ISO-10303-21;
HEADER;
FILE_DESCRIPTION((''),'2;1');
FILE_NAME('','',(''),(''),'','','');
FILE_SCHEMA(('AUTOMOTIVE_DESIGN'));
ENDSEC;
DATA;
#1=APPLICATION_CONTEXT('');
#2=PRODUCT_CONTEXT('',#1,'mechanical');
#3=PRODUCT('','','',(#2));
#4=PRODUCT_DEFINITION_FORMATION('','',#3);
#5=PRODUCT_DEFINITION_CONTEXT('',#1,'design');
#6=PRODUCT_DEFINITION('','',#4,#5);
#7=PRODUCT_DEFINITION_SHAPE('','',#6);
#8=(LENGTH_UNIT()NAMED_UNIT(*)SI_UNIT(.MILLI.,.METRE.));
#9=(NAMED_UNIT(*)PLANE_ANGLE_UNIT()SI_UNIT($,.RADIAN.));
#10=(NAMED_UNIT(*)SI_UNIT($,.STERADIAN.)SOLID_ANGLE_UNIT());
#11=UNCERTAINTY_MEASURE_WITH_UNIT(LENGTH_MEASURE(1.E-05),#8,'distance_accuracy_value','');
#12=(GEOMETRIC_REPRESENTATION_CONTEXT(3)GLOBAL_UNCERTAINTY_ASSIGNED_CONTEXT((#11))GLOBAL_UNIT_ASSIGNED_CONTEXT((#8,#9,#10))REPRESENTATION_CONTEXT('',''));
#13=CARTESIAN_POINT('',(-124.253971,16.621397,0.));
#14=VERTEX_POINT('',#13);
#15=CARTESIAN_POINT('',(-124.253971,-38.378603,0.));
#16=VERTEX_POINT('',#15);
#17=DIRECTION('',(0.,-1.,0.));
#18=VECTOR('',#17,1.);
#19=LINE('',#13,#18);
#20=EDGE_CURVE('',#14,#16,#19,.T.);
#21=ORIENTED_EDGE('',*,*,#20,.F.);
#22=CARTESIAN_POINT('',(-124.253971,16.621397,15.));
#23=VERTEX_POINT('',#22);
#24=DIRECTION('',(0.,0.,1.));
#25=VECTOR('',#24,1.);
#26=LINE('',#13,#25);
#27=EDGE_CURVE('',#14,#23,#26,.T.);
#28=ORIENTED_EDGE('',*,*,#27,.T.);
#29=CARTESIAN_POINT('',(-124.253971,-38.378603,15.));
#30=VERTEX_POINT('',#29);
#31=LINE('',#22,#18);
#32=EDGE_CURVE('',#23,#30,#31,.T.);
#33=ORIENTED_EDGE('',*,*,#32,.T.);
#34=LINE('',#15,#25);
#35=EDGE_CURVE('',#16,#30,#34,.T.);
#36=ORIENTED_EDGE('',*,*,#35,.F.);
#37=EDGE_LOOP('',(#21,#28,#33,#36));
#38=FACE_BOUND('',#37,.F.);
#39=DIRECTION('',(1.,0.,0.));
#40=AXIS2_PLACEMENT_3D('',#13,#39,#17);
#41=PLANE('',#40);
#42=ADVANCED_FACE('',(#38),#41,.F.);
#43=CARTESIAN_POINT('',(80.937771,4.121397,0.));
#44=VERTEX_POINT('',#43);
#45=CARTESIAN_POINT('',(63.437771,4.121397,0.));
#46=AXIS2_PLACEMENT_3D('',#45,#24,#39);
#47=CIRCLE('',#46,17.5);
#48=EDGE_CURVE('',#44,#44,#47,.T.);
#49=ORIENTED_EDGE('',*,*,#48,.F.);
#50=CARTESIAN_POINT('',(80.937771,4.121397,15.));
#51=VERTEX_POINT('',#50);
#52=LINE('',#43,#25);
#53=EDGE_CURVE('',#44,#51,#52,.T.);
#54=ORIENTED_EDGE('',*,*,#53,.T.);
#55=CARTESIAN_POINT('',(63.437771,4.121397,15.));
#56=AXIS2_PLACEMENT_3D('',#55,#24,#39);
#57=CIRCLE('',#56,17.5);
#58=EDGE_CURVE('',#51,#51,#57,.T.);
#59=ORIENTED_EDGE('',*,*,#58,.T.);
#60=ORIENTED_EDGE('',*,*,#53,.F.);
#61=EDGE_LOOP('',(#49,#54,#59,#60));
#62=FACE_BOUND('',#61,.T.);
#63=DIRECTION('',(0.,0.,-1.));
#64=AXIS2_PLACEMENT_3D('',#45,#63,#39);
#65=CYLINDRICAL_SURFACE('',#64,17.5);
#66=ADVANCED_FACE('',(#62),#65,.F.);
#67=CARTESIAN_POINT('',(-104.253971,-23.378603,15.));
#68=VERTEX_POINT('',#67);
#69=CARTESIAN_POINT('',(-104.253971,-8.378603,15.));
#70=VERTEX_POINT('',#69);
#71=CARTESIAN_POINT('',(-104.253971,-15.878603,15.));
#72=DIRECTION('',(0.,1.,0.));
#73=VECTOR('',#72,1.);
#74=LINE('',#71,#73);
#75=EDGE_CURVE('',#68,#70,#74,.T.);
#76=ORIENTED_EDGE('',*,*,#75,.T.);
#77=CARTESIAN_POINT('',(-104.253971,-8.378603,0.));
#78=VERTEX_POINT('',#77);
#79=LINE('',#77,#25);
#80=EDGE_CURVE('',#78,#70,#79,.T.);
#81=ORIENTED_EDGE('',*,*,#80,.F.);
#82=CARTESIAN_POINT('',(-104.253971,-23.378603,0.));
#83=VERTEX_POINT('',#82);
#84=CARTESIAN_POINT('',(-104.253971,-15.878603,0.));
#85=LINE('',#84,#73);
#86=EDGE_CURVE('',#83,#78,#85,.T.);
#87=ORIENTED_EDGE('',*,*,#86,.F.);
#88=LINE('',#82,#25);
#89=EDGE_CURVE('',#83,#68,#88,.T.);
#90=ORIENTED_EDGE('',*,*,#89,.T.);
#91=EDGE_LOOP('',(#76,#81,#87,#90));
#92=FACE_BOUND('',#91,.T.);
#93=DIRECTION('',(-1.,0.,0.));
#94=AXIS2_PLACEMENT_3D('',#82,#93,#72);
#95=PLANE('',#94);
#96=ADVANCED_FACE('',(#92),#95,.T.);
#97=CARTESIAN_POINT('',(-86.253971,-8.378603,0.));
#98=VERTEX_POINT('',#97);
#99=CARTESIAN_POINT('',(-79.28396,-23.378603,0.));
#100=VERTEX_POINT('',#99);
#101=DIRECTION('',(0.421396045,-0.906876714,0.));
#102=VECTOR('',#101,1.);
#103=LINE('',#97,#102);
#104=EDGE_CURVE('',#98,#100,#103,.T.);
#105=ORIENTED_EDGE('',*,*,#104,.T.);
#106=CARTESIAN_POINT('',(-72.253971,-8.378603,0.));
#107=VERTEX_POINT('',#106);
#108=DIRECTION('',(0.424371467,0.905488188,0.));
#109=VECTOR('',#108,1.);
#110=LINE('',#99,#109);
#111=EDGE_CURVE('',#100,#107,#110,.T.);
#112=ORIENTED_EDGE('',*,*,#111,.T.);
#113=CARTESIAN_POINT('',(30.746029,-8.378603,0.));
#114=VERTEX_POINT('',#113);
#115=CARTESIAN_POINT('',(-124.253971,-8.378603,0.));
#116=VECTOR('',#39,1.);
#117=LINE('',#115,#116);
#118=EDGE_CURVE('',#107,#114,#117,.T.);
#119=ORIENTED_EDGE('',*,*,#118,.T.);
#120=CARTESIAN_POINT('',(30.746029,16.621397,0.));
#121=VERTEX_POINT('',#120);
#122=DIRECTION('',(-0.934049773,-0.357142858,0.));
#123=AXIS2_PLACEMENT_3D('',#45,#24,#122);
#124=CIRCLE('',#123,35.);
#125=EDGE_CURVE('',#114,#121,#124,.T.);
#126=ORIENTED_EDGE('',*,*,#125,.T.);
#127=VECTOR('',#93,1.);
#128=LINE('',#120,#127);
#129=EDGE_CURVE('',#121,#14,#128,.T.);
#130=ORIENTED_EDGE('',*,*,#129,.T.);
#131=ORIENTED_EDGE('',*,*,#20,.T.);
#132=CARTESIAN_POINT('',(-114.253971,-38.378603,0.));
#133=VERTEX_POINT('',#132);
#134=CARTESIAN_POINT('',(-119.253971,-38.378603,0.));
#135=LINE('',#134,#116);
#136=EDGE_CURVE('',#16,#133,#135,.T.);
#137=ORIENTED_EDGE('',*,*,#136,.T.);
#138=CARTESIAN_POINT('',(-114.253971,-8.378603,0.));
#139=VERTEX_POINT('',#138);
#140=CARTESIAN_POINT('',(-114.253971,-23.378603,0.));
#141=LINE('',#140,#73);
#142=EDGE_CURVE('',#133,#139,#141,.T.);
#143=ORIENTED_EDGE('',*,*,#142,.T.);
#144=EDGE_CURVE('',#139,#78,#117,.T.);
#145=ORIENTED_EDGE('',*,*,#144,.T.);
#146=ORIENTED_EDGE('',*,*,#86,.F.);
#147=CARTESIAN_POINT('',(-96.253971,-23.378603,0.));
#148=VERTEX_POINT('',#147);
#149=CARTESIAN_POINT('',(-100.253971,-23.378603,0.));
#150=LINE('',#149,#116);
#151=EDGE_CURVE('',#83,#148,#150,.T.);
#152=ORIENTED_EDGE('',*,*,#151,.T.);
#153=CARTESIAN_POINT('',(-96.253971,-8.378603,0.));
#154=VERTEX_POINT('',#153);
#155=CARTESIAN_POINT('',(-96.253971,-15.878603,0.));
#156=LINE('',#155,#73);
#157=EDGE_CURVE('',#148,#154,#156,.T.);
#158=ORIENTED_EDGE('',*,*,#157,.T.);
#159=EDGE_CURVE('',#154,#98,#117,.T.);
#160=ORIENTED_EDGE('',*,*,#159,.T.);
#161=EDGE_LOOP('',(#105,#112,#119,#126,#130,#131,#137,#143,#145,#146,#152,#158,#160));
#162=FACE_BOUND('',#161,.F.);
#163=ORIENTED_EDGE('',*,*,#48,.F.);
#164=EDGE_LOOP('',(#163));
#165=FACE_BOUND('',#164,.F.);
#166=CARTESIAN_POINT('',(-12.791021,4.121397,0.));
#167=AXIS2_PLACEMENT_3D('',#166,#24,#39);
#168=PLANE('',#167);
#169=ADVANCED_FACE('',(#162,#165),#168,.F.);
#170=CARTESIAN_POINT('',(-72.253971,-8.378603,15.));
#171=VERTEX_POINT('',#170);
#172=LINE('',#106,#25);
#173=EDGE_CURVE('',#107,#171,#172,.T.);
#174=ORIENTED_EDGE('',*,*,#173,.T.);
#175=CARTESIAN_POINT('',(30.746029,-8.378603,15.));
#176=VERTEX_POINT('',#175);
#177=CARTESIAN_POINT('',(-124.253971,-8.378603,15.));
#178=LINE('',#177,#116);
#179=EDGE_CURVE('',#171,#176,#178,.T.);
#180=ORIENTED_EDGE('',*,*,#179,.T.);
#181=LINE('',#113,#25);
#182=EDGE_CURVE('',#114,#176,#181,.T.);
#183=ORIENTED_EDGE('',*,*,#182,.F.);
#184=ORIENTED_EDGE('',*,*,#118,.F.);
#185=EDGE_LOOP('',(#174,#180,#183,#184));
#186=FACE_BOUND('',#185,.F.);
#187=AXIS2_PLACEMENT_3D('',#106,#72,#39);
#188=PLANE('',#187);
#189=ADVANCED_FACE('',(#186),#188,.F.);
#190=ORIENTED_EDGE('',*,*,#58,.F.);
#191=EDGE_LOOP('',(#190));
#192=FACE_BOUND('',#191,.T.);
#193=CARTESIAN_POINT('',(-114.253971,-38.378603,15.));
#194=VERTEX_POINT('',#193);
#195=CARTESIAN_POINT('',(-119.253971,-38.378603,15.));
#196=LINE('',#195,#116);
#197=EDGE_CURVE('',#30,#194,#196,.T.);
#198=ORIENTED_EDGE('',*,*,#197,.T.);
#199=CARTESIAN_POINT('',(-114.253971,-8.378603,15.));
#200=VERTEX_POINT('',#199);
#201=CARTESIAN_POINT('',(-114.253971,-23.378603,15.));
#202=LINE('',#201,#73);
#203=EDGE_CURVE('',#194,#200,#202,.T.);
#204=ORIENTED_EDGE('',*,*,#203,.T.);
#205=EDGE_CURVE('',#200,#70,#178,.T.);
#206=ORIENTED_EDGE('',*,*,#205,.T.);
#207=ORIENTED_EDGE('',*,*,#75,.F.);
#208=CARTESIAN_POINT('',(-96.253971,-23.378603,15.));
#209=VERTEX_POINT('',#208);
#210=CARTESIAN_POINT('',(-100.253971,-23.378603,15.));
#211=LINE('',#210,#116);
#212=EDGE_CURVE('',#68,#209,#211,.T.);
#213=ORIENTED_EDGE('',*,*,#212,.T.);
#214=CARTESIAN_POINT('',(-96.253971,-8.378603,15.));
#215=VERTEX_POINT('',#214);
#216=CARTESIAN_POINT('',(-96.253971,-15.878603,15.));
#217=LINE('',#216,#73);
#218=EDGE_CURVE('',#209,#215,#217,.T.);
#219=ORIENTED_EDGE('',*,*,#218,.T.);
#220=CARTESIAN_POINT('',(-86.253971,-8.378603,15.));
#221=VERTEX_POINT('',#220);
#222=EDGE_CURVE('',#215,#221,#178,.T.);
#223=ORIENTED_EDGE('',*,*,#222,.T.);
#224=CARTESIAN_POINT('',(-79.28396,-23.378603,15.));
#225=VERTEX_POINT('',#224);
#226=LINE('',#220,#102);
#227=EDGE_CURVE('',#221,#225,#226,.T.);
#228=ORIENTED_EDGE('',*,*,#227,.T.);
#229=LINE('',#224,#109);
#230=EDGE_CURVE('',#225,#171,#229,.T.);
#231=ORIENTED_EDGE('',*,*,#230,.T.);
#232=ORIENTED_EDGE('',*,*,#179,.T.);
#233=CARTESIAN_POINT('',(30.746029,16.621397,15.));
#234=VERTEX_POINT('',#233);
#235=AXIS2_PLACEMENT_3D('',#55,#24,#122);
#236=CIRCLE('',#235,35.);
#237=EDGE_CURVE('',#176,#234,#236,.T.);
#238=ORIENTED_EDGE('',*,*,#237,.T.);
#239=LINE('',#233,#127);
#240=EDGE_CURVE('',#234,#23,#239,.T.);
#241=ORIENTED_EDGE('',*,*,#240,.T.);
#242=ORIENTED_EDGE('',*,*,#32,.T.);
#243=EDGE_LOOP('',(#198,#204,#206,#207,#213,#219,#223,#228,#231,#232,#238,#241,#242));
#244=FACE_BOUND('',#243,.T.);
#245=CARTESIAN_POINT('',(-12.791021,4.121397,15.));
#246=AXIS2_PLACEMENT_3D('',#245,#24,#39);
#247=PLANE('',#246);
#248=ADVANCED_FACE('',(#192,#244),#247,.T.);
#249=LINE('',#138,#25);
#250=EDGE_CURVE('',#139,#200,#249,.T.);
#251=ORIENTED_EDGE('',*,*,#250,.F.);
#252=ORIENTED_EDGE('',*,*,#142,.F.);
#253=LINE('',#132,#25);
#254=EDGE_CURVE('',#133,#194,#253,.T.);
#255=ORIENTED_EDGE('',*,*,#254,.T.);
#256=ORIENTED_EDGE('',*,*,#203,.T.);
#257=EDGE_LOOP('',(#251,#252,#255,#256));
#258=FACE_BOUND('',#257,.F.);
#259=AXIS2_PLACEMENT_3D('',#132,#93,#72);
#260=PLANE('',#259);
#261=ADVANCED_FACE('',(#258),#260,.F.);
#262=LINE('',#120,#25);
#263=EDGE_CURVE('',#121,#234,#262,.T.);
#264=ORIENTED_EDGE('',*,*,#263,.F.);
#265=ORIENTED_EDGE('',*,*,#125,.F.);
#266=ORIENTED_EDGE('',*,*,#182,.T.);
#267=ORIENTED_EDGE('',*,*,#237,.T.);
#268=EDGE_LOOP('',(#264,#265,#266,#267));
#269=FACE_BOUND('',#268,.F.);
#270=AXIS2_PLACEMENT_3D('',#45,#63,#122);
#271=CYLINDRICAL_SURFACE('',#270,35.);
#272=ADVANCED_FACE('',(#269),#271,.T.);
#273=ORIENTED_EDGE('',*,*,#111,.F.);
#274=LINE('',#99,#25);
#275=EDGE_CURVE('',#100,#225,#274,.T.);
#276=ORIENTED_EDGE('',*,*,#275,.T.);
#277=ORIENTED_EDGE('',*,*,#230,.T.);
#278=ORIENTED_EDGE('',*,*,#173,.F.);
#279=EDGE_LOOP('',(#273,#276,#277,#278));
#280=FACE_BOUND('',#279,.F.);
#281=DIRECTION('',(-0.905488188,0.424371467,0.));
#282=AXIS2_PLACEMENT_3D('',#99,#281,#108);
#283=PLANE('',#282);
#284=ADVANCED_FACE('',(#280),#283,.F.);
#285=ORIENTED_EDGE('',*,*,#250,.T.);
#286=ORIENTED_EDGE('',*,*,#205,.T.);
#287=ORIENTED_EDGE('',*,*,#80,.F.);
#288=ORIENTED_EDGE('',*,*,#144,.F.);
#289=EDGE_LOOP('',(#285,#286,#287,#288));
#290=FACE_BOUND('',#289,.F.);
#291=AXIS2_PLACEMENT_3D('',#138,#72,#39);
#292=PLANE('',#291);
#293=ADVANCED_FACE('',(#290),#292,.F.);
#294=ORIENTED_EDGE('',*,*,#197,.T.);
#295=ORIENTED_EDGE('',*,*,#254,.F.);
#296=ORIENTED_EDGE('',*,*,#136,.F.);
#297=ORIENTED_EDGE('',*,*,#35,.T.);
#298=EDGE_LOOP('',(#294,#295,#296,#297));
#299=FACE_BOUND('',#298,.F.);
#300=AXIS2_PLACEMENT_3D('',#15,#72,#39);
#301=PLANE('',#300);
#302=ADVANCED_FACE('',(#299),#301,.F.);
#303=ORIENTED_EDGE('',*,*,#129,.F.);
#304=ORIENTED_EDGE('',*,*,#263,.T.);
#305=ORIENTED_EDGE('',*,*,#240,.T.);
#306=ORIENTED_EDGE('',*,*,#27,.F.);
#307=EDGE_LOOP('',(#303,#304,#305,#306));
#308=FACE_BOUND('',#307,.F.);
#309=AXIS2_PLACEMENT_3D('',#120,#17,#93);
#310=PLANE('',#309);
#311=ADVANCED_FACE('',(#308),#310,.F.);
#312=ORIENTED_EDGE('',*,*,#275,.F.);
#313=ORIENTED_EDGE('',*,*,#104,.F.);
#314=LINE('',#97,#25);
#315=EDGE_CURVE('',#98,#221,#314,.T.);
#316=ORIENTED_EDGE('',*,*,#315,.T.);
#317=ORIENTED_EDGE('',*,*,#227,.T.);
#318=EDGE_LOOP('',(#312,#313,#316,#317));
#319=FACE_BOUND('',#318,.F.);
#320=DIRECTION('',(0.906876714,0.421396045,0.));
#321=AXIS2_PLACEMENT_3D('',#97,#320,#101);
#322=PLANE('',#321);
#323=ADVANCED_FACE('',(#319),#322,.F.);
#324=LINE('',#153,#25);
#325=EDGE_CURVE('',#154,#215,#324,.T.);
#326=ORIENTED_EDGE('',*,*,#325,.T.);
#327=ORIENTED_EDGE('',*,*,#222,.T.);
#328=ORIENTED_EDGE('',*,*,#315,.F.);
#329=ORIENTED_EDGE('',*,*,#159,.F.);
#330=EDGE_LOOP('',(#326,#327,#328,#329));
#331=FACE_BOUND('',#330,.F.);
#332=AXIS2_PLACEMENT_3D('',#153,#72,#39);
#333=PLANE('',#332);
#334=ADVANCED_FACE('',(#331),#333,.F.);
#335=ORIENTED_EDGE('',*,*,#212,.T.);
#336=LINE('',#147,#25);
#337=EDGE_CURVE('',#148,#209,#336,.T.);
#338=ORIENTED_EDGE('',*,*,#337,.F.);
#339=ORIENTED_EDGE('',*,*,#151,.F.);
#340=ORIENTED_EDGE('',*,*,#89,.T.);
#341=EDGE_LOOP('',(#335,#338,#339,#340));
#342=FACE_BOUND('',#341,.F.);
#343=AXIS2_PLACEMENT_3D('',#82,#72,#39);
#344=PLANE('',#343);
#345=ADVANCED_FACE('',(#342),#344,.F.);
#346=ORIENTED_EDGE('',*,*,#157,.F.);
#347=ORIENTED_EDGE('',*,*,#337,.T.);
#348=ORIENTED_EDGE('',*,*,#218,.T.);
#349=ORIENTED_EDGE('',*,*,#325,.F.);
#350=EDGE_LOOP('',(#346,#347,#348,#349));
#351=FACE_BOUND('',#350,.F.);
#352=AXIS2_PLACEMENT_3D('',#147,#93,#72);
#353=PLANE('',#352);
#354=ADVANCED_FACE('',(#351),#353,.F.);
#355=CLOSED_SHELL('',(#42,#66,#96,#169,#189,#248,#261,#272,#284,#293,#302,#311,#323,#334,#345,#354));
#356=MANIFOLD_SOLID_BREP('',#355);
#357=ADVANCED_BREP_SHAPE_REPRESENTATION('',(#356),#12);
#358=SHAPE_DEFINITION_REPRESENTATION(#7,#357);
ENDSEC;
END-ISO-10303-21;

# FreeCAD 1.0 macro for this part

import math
import FreeCAD as App
import Part
import Sketcher

V = App.Vector

doc = App.newDocument("Part")
body = doc.addObject("PartDesign::Body", "Body")

sketch1 = body.newObject("Sketcher::SketchObject", "Sketch")
sketch1.AttachmentSupport = (doc.getObject("XY_Plane"), [""])
sketch1.MapMode = "FlatFace"
sketch1.addGeometry(Part.LineSegment(V(31, 17, 0), V(-124, 17, 0)), False)
sketch1.addGeometry(Part.LineSegment(V(-124, 17, 0), V(-124, -38, 0)), False)
sketch1.addGeometry(Part.LineSegment(V(-124, -38, 0), V(-114, -38, 0)), False)
sketch1.addGeometry(Part.LineSegment(V(-114, -38, 0), V(-114, -8, 0)), False)
sketch1.addGeometry(Part.LineSegment(V(-114, -8, 0), V(-104, -8, 0)), False)
sketch1.addGeometry(Part.LineSegment(V(-104, -8, 0), V(-104, -23, 0)), False)
sketch1.addGeometry(Part.LineSegment(V(-104, -23, 0), V(-96, -23, 0)), False)
sketch1.addGeometry(Part.LineSegment(V(-96, -23, 0), V(-96, -8, 0)), False)
sketch1.addGeometry(Part.LineSegment(V(-96, -8, 0), V(-86, -8, 0)), False)
sketch1.addGeometry(Part.LineSegment(V(-86, -8, 0), V(-79, -23, 0)), False)
sketch1.addGeometry(Part.LineSegment(V(-79, -23, 0), V(-72, -8, 0)), False)
sketch1.addGeometry(Part.LineSegment(V(-72, -8, 0), V(31, -8, 0)), False)
sketch1.addGeometry(Part.ArcOfCircle(Part.Circle(V(63, 4, 0), V(0, 0, 1), 35), math.radians(-159), math.radians(159)), False)
sketch1.addGeometry(Part.Circle(V(63, 4, 0), V(0, 0, 1), 18), False)
sketch1.addConstraint(Sketcher.Constraint("Coincident", 0, 2, 1, 1))
sketch1.addConstraint(Sketcher.Constraint("Coincident", 1, 2, 2, 1))
sketch1.addConstraint(Sketcher.Constraint("Coincident", 2, 2, 3, 1))
sketch1.addConstraint(Sketcher.Constraint("Coincident", 3, 2, 4, 1))
sketch1.addConstraint(Sketcher.Constraint("Coincident", 4, 2, 5, 1))
sketch1.addConstraint(Sketcher.Constraint("Coincident", 5, 2, 6, 1))
sketch1.addConstraint(Sketcher.Constraint("Coincident", 6, 2, 7, 1))
sketch1.addConstraint(Sketcher.Constraint("Coincident", 7, 2, 8, 1))
sketch1.addConstraint(Sketcher.Constraint("Coincident", 8, 2, 9, 1))
sketch1.addConstraint(Sketcher.Constraint("Coincident", 9, 2, 10, 1))
sketch1.addConstraint(Sketcher.Constraint("Coincident", 10, 2, 11, 1))
sketch1.addConstraint(Sketcher.Constraint("Coincident", 11, 2, 12, 1))
sketch1.addConstraint(Sketcher.Constraint("Coincident", 12, 2, 0, 1))
sketch1.addConstraint(Sketcher.Constraint("Horizontal", 0))
sketch1.addConstraint(Sketcher.Constraint("Vertical", 1))
sketch1.addConstraint(Sketcher.Constraint("Horizontal", 2))
sketch1.addConstraint(Sketcher.Constraint("Vertical", 3))
sketch1.addConstraint(Sketcher.Constraint("Horizontal", 4))
sketch1.addConstraint(Sketcher.Constraint("Vertical", 5))
sketch1.addConstraint(Sketcher.Constraint("Horizontal", 6))
sketch1.addConstraint(Sketcher.Constraint("Vertical", 7))
sketch1.addConstraint(Sketcher.Constraint("Horizontal", 8))
sketch1.addConstraint(Sketcher.Constraint("Horizontal", 11))
sketch1.addConstraint(Sketcher.Constraint("Coincident", 13, 3, 12, 3))
sketch1.addConstraint(Sketcher.Constraint("Horizontal", 4, 2, 7, 2))
sketch1.addConstraint(Sketcher.Constraint("Horizontal", 6, 2, 9, 2))
sketch1.addConstraint(Sketcher.Constraint("Horizontal", 8, 2, 10, 2))
sketch1.addConstraint(Sketcher.Constraint("Vertical", 11, 2, 12, 2))
sketch1.addConstraint(Sketcher.Constraint("Equal", 2, 4))
sketch1.addConstraint(Sketcher.Constraint("Equal", 4, 8))
sketch1.addConstraint(Sketcher.Constraint("Diameter", 13, 35.0))
sketch1.addConstraint(Sketcher.Constraint("Radius", 12, 35.0))
sketch1.addConstraint(Sketcher.Constraint("DistanceX", 0, 2, 0, 1, 155.0))
sketch1.addConstraint(Sketcher.Constraint("DistanceX", 2, 1, 2, 2, 10.0))
sketch1.addConstraint(Sketcher.Constraint("DistanceX", 6, 1, 6, 2, 8.0))
sketch1.addConstraint(Sketcher.Constraint("DistanceX", 11, 1, 11, 2, 103.0))
sketch1.addConstraint(Sketcher.Constraint("DistanceY", 1, 2, 1, 1, 55.0))
sketch1.addConstraint(Sketcher.Constraint("DistanceY", 3, 1, 3, 2, 30.0))
sketch1.addConstraint(Sketcher.Constraint("DistanceY", 5, 2, 5, 1, 15.0))
sketch1.addConstraint(Sketcher.Constraint("Distance", 10, 16.56565))
sketch1.addConstraint(Sketcher.Constraint("DistanceX", -1, 1, 12, 3, 63.437771))
sketch1.addConstraint(Sketcher.Constraint("DistanceY", -1, 1, 12, 3, 4.121397))
pad1 = body.newObject("PartDesign::Pad", "Pad")
pad1.Profile = sketch1
pad1.Length = 15

doc.recompute()
